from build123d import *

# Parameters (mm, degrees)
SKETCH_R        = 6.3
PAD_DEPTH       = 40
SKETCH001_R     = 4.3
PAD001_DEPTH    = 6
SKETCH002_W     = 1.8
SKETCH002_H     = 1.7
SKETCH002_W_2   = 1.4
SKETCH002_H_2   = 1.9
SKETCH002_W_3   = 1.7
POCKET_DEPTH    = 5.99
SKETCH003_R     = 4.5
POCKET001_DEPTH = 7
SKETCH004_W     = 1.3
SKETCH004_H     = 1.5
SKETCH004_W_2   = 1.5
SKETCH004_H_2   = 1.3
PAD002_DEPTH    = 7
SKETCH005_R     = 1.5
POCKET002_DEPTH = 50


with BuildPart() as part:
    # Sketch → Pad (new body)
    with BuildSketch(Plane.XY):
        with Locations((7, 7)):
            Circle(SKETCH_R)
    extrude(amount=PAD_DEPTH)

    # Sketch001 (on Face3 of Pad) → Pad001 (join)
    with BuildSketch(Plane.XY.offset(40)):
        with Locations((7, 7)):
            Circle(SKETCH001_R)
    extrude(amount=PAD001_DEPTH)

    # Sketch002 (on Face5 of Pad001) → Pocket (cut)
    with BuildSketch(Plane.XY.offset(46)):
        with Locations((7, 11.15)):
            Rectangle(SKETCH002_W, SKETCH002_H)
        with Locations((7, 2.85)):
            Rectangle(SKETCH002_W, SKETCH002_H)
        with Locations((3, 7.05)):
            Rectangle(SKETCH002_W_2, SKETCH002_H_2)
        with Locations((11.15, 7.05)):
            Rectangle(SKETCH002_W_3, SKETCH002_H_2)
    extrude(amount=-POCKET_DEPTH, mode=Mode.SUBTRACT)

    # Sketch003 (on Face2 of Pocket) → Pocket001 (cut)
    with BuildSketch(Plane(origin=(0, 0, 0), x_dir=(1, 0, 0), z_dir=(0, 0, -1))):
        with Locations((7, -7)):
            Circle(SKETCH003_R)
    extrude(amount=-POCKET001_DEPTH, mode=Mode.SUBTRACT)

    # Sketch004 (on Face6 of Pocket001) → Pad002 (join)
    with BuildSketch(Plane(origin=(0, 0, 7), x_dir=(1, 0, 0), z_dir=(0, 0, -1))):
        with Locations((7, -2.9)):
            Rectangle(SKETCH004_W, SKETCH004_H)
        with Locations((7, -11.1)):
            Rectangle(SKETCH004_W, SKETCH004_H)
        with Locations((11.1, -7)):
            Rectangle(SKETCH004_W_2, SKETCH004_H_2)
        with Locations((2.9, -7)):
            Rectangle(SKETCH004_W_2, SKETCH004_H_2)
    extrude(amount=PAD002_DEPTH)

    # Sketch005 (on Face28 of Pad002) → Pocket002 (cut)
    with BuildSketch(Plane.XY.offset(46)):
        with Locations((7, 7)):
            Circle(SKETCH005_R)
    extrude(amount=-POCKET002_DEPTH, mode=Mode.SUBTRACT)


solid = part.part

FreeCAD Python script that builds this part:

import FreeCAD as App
import Part
import Sketcher

V = App.Vector
Q = App.Units.Quantity

doc = App.newDocument("Part")
params = doc.addObject("Spreadsheet::Sheet", "Params")
for row, (alias, value) in enumerate([
    ("sketch1_diameter", "12.6 mm"),
    ("pad1_length", "40 mm"),
    ("sketch2_diameter", "8.6 mm"),
    ("pad2_length", "6 mm"),
    ("sketch3_width", "1.8 mm"),
    ("sketch3_width2", "1.4 mm"),
    ("sketch3_width3", "1.7 mm"),
    ("sketch3_height", "1.9 mm"),
    ("pocket1_length", "5.99 mm"),
    ("sketch4_diameter", "9 mm"),
    ("pocket2_length", "7 mm"),
    ("sketch5_width", "1.3 mm"),
    ("sketch5_width2", "1.5 mm"),
    ("pad3_length", "7 mm"),
    ("sketch6_diameter", "3 mm"),
    ("pocket3_length", "50 mm"),
], start=1):
    params.set(f"A{row}", alias)
    params.set(f"B{row}", "=" + value)
    params.setAlias(f"B{row}", alias)

body = doc.addObject("PartDesign::Body", "Body")

# Sketch on XY plane
sketch1 = doc.addObject("Sketcher::SketchObject", "Sketch")
body.addObject(sketch1)
sketch1.AttachmentSupport = (doc.XY_Plane, [""])
sketch1.MapMode = "FlatFace"
sketch1.addGeometry(Part.Circle(V(7, 7, 0), V(0, 0, 1), 6), False)
sketch1.addConstraint([
    Sketcher.Constraint("Diameter", 0, Q("12.6 mm")),
    Sketcher.Constraint("DistanceX", -1, 1, 0, 3, Q("7 mm")),
    Sketcher.Constraint("DistanceY", -1, 1, 0, 3, Q("7 mm")),
])
sketch1.setExpression("Constraints[0]", "Params.sketch1_diameter")
pad1 = doc.addObject("PartDesign::Pad", "Pad")
body.addObject(pad1)
pad1.Profile = sketch1
pad1.setExpression("Length", "Params.pad1_length")

# Sketch on XY plane
sketch2 = doc.addObject("Sketcher::SketchObject", "Sketch001")
body.addObject(sketch2)
sketch2.AttachmentSupport = (doc.XY_Plane, [""])
sketch2.MapMode = "FlatFace"
sketch2.AttachmentOffset = App.Placement(V(0, 0, 40), App.Rotation())
sketch2.addGeometry(Part.Circle(V(7, 7, 0), V(0, 0, 1), 4.3), False)
sketch2.addConstraint([
    Sketcher.Constraint("Diameter", 0, Q("8.6 mm")),
    Sketcher.Constraint("DistanceX", -1, 1, 0, 3, Q("7 mm")),
    Sketcher.Constraint("DistanceY", -1, 1, 0, 3, Q("7 mm")),
])
sketch2.setExpression("Constraints[0]", "Params.sketch2_diameter")
pad2 = doc.addObject("PartDesign::Pad", "Pad001")
body.addObject(pad2)
pad2.Profile = sketch2
pad2.setExpression("Length", "Params.pad2_length")

# Sketch on XY plane
sketch3 = doc.addObject("Sketcher::SketchObject", "Sketch002")
body.addObject(sketch3)
sketch3.AttachmentSupport = (doc.XY_Plane, [""])
sketch3.MapMode = "FlatFace"
sketch3.AttachmentOffset = App.Placement(V(0, 0, 46), App.Rotation())
sketch3.addGeometry([
    Part.LineSegment(V(6.1, 12, 0), V(6.1, 10.3, 0)),  # 0
    Part.LineSegment(V(6.1, 10.3, 0), V(7.9, 10.3, 0)),  # 1
    Part.LineSegment(V(7.9, 10.3, 0), V(7.9, 12, 0)),  # 2
    Part.LineSegment(V(7.9, 12, 0), V(6.1, 12, 0)),  # 3
    Part.LineSegment(V(6.1, 3.7, 0), V(6.1, 2, 0)),  # 4
    Part.LineSegment(V(6.1, 2, 0), V(7.9, 2, 0)),  # 5
    Part.LineSegment(V(7.9, 2, 0), V(7.9, 3.7, 0)),  # 6
    Part.LineSegment(V(7.9, 3.7, 0), V(6.1, 3.7, 0)),  # 7
    Part.LineSegment(V(2.3, 8, 0), V(2.3, 6.1, 0)),  # 8
    Part.LineSegment(V(2.3, 6.1, 0), V(3.7, 6.1, 0)),  # 9
    Part.LineSegment(V(3.7, 6.1, 0), V(3.7, 8, 0)),  # 10
    Part.LineSegment(V(3.7, 8, 0), V(2.3, 8, 0)),  # 11
    Part.LineSegment(V(10.3, 8, 0), V(10.3, 6.1, 0)),  # 12
    Part.LineSegment(V(10.3, 6.1, 0), V(12, 6.1, 0)),  # 13
    Part.LineSegment(V(12, 6.1, 0), V(12, 8, 0)),  # 14
    Part.LineSegment(V(12, 8, 0), V(10.3, 8, 0)),  # 15
], False)
sketch3.addConstraint([
    Sketcher.Constraint("Coincident", 0, 2, 1, 1),
    Sketcher.Constraint("Coincident", 1, 2, 2, 1),
    Sketcher.Constraint("Coincident", 2, 2, 3, 1),
    Sketcher.Constraint("Coincident", 3, 2, 0, 1),
    Sketcher.Constraint("Coincident", 4, 2, 5, 1),
    Sketcher.Constraint("Coincident", 5, 2, 6, 1),
    Sketcher.Constraint("Coincident", 6, 2, 7, 1),
    Sketcher.Constraint("Coincident", 7, 2, 4, 1),
    Sketcher.Constraint("Coincident", 8, 2, 9, 1),
    Sketcher.Constraint("Coincident", 9, 2, 10, 1),
    Sketcher.Constraint("Coincident", 10, 2, 11, 1),
    Sketcher.Constraint("Coincident", 11, 2, 8, 1),
    Sketcher.Constraint("Coincident", 12, 2, 13, 1),
    Sketcher.Constraint("Coincident", 13, 2, 14, 1),
    Sketcher.Constraint("Coincident", 14, 2, 15, 1),
    Sketcher.Constraint("Coincident", 15, 2, 12, 1),
    Sketcher.Constraint("Vertical", 0),
    Sketcher.Constraint("Horizontal", 1),
    Sketcher.Constraint("Vertical", 2),
    Sketcher.Constraint("Horizontal", 3),
    Sketcher.Constraint("Vertical", 4),
    Sketcher.Constraint("Horizontal", 5),
    Sketcher.Constraint("Vertical", 6),
    Sketcher.Constraint("Horizontal", 7),
    Sketcher.Constraint("Vertical", 8),
    Sketcher.Constraint("Horizontal", 9),
    Sketcher.Constraint("Vertical", 10),
    Sketcher.Constraint("Horizontal", 11),
    Sketcher.Constraint("Vertical", 12),
    Sketcher.Constraint("Horizontal", 13),
    Sketcher.Constraint("Vertical", 14),
    Sketcher.Constraint("Horizontal", 15),
    Sketcher.Constraint("Horizontal", 9, 2, 12, 2),
    Sketcher.Constraint("Horizontal", 11, 2, 14, 2),
    Sketcher.Constraint("Vertical", 3, 2, 4, 2),
    Sketcher.Constraint("Vertical", 2, 2, 5, 2),
    Sketcher.Constraint("Equal", 15, 0),
    Sketcher.Constraint("Equal", 2, 4),
    Sketcher.Constraint("DistanceX", 1, 1, 1, 2, Q("1.8 mm")),
    Sketcher.Constraint("DistanceX", 9, 1, 9, 2, Q("1.4 mm")),
    Sketcher.Constraint("DistanceX", 13, 1, 13, 2, Q("1.7 mm")),
    Sketcher.Constraint("DistanceY", 8, 2, 8, 1, Q("1.9 mm")),
    Sketcher.Constraint("DistanceY", -1, 1, 2, 2, Q("12 mm")),
    Sketcher.Constraint("DistanceY", -1, 1, 4, 2, Q("2 mm")),
    Sketcher.Constraint("DistanceY", -1, 1, 10, 2, Q("8 mm")),
    Sketcher.Constraint("DistanceX", -1, 1, 13, 2, Q("12 mm")),
    Sketcher.Constraint("DistanceX", -1, 1, 0, 2, Q("6.1 mm")),
    Sketcher.Constraint("DistanceX", -1, 1, 8, 2, Q("2.3 mm")),
])
sketch3.setExpression("Constraints[38]", "Params.sketch3_width")
sketch3.setExpression("Constraints[39]", "Params.sketch3_width2")
sketch3.setExpression("Constraints[40]", "Params.sketch3_width3")
sketch3.setExpression("Constraints[41]", "Params.sketch3_height")
pocket1 = doc.addObject("PartDesign::Pocket", "Pocket")
body.addObject(pocket1)
pocket1.Profile = sketch3
pocket1.setExpression("Length", "Params.pocket1_length")

# Sketch on XY plane
sketch4 = doc.addObject("Sketcher::SketchObject", "Sketch003")
body.addObject(sketch4)
sketch4.AttachmentSupport = (doc.XY_Plane, [""])
sketch4.MapMode = "FlatFace"
sketch4.addGeometry(Part.Circle(V(7, 7, 0), V(0, 0, 1), 4.5), False)
sketch4.addConstraint([
    Sketcher.Constraint("Diameter", 0, Q("9 mm")),
    Sketcher.Constraint("DistanceX", -1, 1, 0, 3, Q("7 mm")),
    Sketcher.Constraint("DistanceY", -1, 1, 0, 3, Q("7 mm")),
])
sketch4.setExpression("Constraints[0]", "Params.sketch4_diameter")
pocket2 = doc.addObject("PartDesign::Pocket", "Pocket001")
body.addObject(pocket2)
pocket2.Profile = sketch4
pocket2.setExpression("Length", "Params.pocket2_length")
pocket2.Reversed = True

# Sketch on XY plane
sketch5 = doc.addObject("Sketcher::SketchObject", "Sketch004")
body.addObject(sketch5)
sketch5.AttachmentSupport = (doc.XY_Plane, [""])
sketch5.MapMode = "FlatFace"
sketch5.AttachmentOffset = App.Placement(V(0, 0, 7), App.Rotation())
sketch5.addGeometry([
    Part.LineSegment(V(6.3, 2.1, 0), V(6.3, 3.6, 0)),  # 0
    Part.LineSegment(V(6.3, 3.6, 0), V(7.7, 3.6, 0)),  # 1
    Part.LineSegment(V(7.7, 3.6, 0), V(7.7, 2.1, 0)),  # 2
    Part.LineSegment(V(7.7, 2.1, 0), V(6.3, 2.1, 0)),  # 3
    Part.LineSegment(V(6.3, 10.3, 0), V(6.3, 11.8, 0)),  # 4
    Part.LineSegment(V(6.3, 11.8, 0), V(7.7, 11.8, 0)),  # 5
    Part.LineSegment(V(7.7, 11.8, 0), V(7.7, 10.3, 0)),  # 6
    Part.LineSegment(V(7.7, 10.3, 0), V(6.3, 10.3, 0)),  # 7
    Part.LineSegment(V(10.3, 6.3, 0), V(10.3, 7.7, 0)),  # 8
    Part.LineSegment(V(10.3, 7.7, 0), V(11.8, 7.7, 0)),  # 9
    Part.LineSegment(V(11.8, 7.7, 0), V(11.8, 6.3, 0)),  # 10
    Part.LineSegment(V(11.8, 6.3, 0), V(10.3, 6.3, 0)),  # 11
    Part.LineSegment(V(2.1, 6.3, 0), V(2.1, 7.7, 0)),  # 12
    Part.LineSegment(V(2.1, 7.7, 0), V(3.6, 7.7, 0)),  # 13
    Part.LineSegment(V(3.6, 7.7, 0), V(3.6, 6.3, 0)),  # 14
    Part.LineSegment(V(3.6, 6.3, 0), V(2.1, 6.3, 0)),  # 15
], False)
sketch5.addConstraint([
    Sketcher.Constraint("Coincident", 0, 2, 1, 1),
    Sketcher.Constraint("Coincident", 1, 2, 2, 1),
    Sketcher.Constraint("Coincident", 2, 2, 3, 1),
    Sketcher.Constraint("Coincident", 3, 2, 0, 1),
    Sketcher.Constraint("Coincident", 4, 2, 5, 1),
    Sketcher.Constraint("Coincident", 5, 2, 6, 1),
    Sketcher.Constraint("Coincident", 6, 2, 7, 1),
    Sketcher.Constraint("Coincident", 7, 2, 4, 1),
    Sketcher.Constraint("Coincident", 8, 2, 9, 1),
    Sketcher.Constraint("Coincident", 9, 2, 10, 1),
    Sketcher.Constraint("Coincident", 10, 2, 11, 1),
    Sketcher.Constraint("Coincident", 11, 2, 8, 1),
    Sketcher.Constraint("Coincident", 12, 2, 13, 1),
    Sketcher.Constraint("Coincident", 13, 2, 14, 1),
    Sketcher.Constraint("Coincident", 14, 2, 15, 1),
    Sketcher.Constraint("Coincident", 15, 2, 12, 1),
    Sketcher.Constraint("Vertical", 0),
    Sketcher.Constraint("Horizontal", 1),
    Sketcher.Constraint("Vertical", 2),
    Sketcher.Constraint("Horizontal", 3),
    Sketcher.Constraint("Vertical", 4),
    Sketcher.Constraint("Horizontal", 5),
    Sketcher.Constraint("Vertical", 6),
    Sketcher.Constraint("Horizontal", 7),
    Sketcher.Constraint("Vertical", 8),
    Sketcher.Constraint("Horizontal", 9),
    Sketcher.Constraint("Vertical", 10),
    Sketcher.Constraint("Horizontal", 11),
    Sketcher.Constraint("Vertical", 12),
    Sketcher.Constraint("Horizontal", 13),
    Sketcher.Constraint("Vertical", 14),
    Sketcher.Constraint("Horizontal", 15),
    Sketcher.Constraint("Horizontal", 9, 2, 12, 2),
    Sketcher.Constraint("Horizontal", 11, 2, 14, 2),
    Sketcher.Constraint("Vertical", 3, 2, 4, 2),
    Sketcher.Constraint("Vertical", 2, 2, 5, 2),
    Sketcher.Constraint("Equal", 11, 13),
    Sketcher.Constraint("Equal", 15, 0),
    Sketcher.Constraint("Equal", 2, 4),
    Sketcher.Constraint("Equal", 7, 8),
    Sketcher.Constraint("DistanceX", 1, 1, 1, 2, Q("1.3 mm")),
    Sketcher.Constraint("DistanceX", 9, 1, 9, 2, Q("1.5 mm")),
    Sketcher.Constraint("DistanceY", 1, 2, 8, 2, Q("4 mm")),
    Sketcher.Constraint("DistanceX", 7, 2, 8, 2, Q("4 mm")),
    Sketcher.Constraint("DistanceY", 10, 2, 6, 2, Q("4 mm")),
    Sketcher.Constraint("DistanceX", 13, 2, 6, 2, Q("4 mm")),
    Sketcher.Constraint("DistanceX", -1, 1, 0, 2, Q("6.35 mm")),
    Sketcher.Constraint("DistanceY", -1, 1, 0, 2, Q("3.65 mm")),
])
sketch5.setExpression("Constraints[40]", "Params.sketch5_width")
sketch5.setExpression("Constraints[41]", "Params.sketch5_width2")
pad3 = doc.addObject("PartDesign::Pad", "Pad002")
body.addObject(pad3)
pad3.Profile = sketch5
pad3.setExpression("Length", "Params.pad3_length")
pad3.Reversed = True

# Sketch on XY plane
sketch6 = doc.addObject("Sketcher::SketchObject", "Sketch005")
body.addObject(sketch6)
sketch6.AttachmentSupport = (doc.XY_Plane, [""])
sketch6.MapMode = "FlatFace"
sketch6.AttachmentOffset = App.Placement(V(0, 0, 46), App.Rotation())
sketch6.addGeometry(Part.Circle(V(7, 7, 0), V(0, 0, 1), 1.5), False)
sketch6.addConstraint([
    Sketcher.Constraint("Diameter", 0, Q("3 mm")),
    Sketcher.Constraint("DistanceX", -1, 1, 0, 3, Q("7 mm")),
    Sketcher.Constraint("DistanceY", -1, 1, 0, 3, Q("7 mm")),
])
sketch6.setExpression("Constraints[0]", "Params.sketch6_diameter")
pocket3 = doc.addObject("PartDesign::Pocket", "Pocket002")
body.addObject(pocket3)
pocket3.Profile = sketch6
pocket3.setExpression("Length", "Params.pocket3_length")

doc.recompute()
